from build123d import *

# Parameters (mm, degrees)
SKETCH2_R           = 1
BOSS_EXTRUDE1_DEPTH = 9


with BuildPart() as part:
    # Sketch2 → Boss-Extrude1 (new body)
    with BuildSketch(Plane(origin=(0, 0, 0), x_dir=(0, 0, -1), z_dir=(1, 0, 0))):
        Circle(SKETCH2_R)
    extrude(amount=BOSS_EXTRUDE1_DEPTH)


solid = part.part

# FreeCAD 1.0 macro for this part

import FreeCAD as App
import Part
import Sketcher
Q = App.Units.Quantity

doc = App.newDocument("Part")
body = doc.addObject("PartDesign::Body", "Body")

sketch1 = doc.addObject("Sketcher::SketchObject", "Sketch")
body.addObject(sketch1)
sketch1.AttachmentSupport = (doc.YZ_Plane, [""])
sketch1.MapMode = "FlatFace"
sketch1.addGeometry(Part.Circle(App.Vector(0, 0, 0), App.Vector(0, 0, 1), 1), False)
sketch1.addConstraint([
    Sketcher.Constraint("Coincident", 0, 3, -1, 1),
    Sketcher.Constraint("Diameter", 0, Q("2 mm")),
])
pad1 = doc.addObject("PartDesign::Pad", "Pad")
body.addObject(pad1)
pad1.Profile = sketch1
pad1.Length = 9

doc.recompute()
